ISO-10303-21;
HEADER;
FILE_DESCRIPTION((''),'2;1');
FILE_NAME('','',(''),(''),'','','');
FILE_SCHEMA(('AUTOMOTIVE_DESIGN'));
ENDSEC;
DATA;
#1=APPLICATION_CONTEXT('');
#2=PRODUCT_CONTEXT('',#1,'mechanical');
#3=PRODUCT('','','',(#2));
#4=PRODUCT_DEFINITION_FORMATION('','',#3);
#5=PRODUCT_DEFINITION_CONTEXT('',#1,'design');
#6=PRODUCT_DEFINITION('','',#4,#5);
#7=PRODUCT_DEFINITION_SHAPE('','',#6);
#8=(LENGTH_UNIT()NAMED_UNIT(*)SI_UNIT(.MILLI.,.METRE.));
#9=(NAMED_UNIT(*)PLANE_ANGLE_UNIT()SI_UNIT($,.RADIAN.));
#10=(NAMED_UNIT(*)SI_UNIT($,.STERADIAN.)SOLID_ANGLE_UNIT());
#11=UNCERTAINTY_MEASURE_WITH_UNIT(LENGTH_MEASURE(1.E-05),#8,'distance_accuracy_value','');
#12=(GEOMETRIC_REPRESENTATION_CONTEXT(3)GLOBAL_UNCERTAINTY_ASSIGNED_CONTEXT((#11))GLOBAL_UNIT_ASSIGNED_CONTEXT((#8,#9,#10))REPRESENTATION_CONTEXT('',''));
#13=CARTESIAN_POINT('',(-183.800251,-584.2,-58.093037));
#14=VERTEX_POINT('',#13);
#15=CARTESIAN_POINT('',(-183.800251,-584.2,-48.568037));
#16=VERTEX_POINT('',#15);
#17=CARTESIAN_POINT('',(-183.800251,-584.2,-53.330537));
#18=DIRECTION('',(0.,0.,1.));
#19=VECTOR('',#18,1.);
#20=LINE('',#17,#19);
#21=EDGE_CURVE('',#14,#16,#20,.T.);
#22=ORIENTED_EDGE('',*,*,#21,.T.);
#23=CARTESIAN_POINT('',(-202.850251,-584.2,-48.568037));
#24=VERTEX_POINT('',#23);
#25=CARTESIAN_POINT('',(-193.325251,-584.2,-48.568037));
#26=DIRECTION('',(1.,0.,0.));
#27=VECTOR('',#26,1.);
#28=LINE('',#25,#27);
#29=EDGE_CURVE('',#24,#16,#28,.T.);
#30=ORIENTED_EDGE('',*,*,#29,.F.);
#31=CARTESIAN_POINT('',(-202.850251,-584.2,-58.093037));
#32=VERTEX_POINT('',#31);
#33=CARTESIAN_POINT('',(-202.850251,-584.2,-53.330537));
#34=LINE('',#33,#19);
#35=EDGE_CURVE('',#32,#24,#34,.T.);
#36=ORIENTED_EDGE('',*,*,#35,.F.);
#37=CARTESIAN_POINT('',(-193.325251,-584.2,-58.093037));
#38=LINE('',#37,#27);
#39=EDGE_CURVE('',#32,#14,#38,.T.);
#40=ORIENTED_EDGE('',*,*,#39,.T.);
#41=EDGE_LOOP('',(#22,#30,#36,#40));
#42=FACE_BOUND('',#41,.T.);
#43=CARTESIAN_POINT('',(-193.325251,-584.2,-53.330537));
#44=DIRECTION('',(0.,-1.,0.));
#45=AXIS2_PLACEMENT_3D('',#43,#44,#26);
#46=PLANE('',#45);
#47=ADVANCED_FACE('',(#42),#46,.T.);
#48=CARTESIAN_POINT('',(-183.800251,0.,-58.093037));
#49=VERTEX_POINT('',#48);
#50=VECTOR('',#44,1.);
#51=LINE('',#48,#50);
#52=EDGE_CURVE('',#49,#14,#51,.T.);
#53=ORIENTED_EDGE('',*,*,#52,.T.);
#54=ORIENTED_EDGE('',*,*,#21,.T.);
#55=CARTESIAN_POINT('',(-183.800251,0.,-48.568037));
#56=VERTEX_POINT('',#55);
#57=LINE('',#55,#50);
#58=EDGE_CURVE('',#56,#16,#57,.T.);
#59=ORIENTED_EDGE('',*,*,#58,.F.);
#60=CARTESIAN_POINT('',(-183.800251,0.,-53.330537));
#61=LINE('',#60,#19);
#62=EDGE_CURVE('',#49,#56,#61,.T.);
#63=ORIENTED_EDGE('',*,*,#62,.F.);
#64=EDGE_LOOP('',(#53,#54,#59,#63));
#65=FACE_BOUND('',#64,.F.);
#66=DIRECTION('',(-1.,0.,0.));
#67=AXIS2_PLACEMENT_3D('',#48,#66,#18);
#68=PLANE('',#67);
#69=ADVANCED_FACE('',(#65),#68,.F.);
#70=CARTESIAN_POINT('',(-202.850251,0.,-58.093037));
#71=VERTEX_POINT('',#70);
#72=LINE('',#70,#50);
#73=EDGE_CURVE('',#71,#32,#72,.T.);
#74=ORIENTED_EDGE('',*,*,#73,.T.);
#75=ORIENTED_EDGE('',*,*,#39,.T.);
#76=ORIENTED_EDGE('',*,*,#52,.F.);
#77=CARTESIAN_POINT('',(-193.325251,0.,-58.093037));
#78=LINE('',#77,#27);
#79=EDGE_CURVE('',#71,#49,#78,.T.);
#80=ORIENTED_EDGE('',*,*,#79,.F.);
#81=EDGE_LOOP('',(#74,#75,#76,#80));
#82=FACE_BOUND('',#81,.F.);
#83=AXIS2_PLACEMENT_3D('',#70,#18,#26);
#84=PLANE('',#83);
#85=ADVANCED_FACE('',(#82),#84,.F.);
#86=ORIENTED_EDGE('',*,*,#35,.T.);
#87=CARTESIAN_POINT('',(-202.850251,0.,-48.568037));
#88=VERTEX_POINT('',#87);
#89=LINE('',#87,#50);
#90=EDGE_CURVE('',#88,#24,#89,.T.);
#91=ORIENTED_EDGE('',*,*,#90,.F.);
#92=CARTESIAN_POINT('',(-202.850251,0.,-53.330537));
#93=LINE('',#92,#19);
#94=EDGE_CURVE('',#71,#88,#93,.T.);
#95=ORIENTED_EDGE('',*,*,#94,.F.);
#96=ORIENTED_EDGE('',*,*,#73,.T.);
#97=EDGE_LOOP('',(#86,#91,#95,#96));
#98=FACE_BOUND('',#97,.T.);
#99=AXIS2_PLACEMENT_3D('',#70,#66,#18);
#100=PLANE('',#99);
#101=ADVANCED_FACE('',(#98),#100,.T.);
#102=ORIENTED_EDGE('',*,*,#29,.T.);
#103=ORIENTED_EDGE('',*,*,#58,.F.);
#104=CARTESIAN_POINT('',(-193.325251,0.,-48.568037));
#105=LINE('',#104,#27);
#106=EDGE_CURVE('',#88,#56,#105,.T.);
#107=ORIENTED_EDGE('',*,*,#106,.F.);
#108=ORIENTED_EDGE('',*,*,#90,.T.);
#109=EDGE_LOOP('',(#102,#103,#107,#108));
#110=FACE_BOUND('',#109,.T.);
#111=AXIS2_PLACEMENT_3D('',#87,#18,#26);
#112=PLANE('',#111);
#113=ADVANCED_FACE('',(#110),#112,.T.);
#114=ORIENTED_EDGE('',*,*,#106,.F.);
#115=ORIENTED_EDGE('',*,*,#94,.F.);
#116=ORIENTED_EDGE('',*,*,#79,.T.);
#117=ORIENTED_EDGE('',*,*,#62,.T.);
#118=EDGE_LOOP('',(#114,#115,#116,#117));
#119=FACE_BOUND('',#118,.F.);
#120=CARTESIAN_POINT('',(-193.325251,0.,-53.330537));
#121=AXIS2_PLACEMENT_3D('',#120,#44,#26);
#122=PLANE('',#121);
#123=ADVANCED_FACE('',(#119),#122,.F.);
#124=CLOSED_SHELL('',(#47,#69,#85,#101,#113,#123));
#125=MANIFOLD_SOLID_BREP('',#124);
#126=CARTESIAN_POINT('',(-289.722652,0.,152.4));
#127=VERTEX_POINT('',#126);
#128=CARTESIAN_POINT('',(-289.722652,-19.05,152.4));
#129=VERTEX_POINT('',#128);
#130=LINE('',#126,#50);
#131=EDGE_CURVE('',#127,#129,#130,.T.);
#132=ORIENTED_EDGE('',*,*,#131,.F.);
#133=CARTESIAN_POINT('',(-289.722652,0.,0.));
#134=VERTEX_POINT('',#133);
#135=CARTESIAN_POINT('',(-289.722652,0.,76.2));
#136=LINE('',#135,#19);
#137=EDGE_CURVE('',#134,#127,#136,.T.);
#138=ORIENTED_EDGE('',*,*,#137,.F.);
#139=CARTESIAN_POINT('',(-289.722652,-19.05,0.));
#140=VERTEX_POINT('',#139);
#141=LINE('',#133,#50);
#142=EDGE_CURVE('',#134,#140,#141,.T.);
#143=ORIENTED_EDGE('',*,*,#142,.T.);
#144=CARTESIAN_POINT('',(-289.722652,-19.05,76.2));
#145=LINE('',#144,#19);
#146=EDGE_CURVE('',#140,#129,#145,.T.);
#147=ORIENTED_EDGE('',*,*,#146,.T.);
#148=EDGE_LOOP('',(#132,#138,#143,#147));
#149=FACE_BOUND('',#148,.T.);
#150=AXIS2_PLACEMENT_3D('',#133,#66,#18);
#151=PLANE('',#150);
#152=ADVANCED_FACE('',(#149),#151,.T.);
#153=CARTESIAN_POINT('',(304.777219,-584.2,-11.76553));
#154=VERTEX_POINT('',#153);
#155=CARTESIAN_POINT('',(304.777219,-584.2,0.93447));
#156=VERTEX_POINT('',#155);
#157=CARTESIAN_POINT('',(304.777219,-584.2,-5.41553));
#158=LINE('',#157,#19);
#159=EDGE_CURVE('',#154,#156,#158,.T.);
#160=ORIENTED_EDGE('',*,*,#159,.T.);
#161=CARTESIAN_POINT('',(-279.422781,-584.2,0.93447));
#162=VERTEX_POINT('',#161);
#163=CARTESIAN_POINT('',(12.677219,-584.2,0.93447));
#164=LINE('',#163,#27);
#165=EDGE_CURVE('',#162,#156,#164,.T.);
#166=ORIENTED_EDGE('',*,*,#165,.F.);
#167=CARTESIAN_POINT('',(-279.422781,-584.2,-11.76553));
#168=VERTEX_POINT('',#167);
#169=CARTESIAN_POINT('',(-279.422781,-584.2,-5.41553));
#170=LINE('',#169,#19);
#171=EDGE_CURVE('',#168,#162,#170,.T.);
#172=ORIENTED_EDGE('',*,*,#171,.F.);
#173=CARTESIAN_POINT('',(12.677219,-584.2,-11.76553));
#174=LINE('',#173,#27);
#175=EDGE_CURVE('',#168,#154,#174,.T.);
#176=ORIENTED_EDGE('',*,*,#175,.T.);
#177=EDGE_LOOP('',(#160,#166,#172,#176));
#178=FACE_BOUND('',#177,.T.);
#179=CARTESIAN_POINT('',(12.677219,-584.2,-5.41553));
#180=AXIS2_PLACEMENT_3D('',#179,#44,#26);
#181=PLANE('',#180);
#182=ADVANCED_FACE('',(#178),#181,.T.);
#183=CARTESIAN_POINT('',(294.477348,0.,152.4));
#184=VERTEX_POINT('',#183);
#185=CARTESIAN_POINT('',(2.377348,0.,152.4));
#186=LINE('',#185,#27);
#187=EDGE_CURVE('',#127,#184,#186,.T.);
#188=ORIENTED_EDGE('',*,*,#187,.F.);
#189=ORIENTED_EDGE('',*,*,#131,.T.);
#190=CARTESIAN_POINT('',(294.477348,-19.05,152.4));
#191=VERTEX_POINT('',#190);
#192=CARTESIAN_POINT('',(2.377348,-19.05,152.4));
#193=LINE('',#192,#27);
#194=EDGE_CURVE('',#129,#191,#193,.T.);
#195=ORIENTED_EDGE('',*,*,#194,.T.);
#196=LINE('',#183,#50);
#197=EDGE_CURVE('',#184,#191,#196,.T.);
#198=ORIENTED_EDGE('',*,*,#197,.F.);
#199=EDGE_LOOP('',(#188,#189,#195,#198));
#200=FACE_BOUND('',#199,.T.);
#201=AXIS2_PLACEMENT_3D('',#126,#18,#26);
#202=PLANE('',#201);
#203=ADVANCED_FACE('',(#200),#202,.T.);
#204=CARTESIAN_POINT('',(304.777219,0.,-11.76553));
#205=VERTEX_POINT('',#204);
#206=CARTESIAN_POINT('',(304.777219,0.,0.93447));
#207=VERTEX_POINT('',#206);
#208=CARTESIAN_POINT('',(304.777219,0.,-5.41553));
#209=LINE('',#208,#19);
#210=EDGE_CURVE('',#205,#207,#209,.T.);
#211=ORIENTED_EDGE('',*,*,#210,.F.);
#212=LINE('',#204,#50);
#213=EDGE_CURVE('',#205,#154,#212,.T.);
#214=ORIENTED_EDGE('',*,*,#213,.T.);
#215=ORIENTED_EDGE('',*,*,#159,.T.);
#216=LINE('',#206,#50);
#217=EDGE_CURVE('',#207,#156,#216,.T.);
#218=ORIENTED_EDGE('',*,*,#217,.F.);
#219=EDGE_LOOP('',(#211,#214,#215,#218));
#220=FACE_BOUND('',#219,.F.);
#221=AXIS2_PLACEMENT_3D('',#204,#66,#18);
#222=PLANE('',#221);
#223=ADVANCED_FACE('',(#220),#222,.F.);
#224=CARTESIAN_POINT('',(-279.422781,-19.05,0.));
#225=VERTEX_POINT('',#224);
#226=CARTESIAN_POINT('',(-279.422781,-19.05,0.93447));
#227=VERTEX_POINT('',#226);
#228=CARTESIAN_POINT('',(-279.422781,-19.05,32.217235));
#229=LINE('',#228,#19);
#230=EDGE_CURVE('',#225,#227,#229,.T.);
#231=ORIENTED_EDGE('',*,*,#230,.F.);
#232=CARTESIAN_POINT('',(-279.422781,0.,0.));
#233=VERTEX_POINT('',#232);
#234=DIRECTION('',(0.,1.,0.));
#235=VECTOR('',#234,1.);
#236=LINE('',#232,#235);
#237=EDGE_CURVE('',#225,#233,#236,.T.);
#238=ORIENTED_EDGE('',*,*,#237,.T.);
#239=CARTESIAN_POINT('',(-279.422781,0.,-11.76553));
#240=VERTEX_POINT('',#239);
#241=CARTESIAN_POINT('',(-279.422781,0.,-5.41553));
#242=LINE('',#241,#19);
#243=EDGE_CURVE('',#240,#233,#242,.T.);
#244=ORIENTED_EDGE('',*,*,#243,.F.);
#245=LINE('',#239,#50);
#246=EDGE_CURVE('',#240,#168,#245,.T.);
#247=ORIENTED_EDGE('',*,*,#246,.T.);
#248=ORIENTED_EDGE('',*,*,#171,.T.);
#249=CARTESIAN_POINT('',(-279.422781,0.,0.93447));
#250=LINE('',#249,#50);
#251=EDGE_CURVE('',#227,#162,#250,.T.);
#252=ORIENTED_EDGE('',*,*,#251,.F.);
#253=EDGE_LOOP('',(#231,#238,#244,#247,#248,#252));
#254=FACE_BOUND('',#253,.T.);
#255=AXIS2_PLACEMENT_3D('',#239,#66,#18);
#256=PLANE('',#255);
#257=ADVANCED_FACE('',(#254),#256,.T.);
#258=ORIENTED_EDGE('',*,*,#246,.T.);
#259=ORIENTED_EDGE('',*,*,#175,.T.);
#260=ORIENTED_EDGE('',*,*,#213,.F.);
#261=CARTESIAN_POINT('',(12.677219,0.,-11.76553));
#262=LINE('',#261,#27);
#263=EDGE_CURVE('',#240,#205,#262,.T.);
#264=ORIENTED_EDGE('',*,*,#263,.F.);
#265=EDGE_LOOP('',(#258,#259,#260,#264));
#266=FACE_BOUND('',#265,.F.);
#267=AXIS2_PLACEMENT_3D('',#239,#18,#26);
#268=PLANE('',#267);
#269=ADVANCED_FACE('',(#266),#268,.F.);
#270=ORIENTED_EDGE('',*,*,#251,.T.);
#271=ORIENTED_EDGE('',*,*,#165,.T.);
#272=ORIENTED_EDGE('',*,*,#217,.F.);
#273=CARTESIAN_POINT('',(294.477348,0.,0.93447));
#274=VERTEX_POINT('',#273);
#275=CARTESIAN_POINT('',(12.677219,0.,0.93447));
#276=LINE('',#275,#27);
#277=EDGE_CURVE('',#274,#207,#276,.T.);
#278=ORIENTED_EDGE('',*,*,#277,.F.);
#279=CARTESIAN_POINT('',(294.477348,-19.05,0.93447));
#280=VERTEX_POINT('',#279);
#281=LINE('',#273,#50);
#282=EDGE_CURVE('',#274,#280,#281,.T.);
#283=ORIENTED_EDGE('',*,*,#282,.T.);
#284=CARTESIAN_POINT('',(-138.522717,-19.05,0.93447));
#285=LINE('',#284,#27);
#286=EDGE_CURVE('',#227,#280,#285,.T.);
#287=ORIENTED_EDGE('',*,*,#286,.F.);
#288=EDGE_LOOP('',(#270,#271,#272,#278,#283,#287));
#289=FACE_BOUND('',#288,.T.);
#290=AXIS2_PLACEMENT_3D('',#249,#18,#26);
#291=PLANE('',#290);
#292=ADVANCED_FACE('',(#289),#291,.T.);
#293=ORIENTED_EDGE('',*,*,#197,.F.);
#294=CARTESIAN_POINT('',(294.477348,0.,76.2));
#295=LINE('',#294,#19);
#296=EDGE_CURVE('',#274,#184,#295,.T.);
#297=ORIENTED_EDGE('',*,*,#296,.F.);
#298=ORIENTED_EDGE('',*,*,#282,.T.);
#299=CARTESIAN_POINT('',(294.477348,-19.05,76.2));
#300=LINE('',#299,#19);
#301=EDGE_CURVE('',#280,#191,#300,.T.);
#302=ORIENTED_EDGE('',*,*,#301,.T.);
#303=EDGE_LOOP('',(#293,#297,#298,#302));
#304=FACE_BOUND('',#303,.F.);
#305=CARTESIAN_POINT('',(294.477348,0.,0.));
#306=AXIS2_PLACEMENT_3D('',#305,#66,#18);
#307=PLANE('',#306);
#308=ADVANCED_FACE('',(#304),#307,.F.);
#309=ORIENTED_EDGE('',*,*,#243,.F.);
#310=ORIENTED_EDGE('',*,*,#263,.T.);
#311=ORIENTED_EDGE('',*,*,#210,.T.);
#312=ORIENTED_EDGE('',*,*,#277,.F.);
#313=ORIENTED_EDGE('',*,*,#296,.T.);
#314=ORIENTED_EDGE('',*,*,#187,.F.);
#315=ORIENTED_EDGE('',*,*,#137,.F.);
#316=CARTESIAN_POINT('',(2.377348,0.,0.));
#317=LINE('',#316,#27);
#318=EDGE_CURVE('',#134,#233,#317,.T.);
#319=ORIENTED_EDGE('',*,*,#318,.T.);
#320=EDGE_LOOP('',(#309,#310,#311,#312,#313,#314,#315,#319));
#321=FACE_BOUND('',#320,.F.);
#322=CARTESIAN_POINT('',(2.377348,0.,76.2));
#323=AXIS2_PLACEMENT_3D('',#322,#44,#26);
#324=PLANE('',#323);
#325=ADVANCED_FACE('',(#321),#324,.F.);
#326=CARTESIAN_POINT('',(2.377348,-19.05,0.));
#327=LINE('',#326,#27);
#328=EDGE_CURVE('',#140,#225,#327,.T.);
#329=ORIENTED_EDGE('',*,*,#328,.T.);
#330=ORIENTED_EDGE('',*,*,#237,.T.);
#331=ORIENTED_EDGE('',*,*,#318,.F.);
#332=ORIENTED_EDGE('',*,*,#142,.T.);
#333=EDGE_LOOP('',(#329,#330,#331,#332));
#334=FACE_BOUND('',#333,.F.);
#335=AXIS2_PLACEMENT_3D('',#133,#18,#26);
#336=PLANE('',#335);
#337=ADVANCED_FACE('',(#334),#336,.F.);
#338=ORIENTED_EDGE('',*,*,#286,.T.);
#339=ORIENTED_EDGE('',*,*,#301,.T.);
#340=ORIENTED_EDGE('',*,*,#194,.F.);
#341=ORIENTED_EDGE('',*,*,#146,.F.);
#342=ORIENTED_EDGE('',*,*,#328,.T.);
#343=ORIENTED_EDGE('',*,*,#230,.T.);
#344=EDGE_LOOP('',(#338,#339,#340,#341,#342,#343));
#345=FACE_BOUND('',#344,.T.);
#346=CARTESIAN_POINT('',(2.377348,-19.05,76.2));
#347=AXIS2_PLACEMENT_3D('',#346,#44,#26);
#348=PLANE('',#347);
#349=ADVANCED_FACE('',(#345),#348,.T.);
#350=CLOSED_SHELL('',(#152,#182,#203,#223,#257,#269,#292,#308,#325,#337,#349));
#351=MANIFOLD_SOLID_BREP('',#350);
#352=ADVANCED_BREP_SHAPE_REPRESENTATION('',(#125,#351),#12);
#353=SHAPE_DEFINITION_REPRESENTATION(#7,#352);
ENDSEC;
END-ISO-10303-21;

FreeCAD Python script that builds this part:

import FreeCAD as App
import Part
import Sketcher
Q = App.Units.Quantity

doc = App.newDocument("Part")
params = doc.addObject("Spreadsheet::Sheet", "Params")
for row, (alias, value) in enumerate([
    ("sketch1_width", "0.75 in"),
    ("sketch1_height", "0.375 in"),
    ("pad1_length", "23 in"),
    ("sketch2_width", "23 in"),
    ("sketch2_height", "0.5 in"),
    ("pad2_length", "23 in"),
    ("sketch3_width", "23 in"),
    ("sketch3_height", "6 in"),
    ("pad3_length", "0.75 in"),
], start=1):
    params.set(f"A{row}", alias)
    params.set(f"B{row}", "=" + value)
    params.setAlias(f"B{row}", alias)

body = doc.addObject("PartDesign::Body", "Body")

# Sketch on XZ plane
sketch1 = body.newObject("Sketcher::SketchObject", "Sketch")
sketch1.AttachmentSupport = (doc.getObject("XZ_Plane"), [""])
sketch1.MapMode = "FlatFace"
sketch1.addGeometry([
    Part.LineSegment(App.Vector(-203, -49, 0), App.Vector(-203, -58, 0)),
    Part.LineSegment(App.Vector(-203, -58, 0), App.Vector(-184, -58, 0)),
    Part.LineSegment(App.Vector(-184, -58, 0), App.Vector(-184, -49, 0)),
    Part.LineSegment(App.Vector(-184, -49, 0), App.Vector(-203, -49, 0)),
], False)
sketch1.addConstraint([
    Sketcher.Constraint("Coincident", 0, 2, 1, 1),
    Sketcher.Constraint("Coincident", 1, 2, 2, 1),
    Sketcher.Constraint("Coincident", 2, 2, 3, 1),
    Sketcher.Constraint("Coincident", 3, 2, 0, 1),
    Sketcher.Constraint("Vertical", 0),
    Sketcher.Constraint("Horizontal", 1),
    Sketcher.Constraint("Vertical", 2),
    Sketcher.Constraint("Horizontal", 3),
    Sketcher.Constraint("DistanceX", 1, 1, 1, 2, Q("0.75 in")),
    Sketcher.Constraint("DistanceY", 0, 2, 0, 1, Q("0.375 in")),
    Sketcher.Constraint("DistanceX", 0, 2, -1, 1, 202.850251),
    Sketcher.Constraint("DistanceY", 0, 2, -1, 1, 58.093037),
])
sketch1.setExpression("Constraints[8]", "Params.sketch1_width")
sketch1.setExpression("Constraints[9]", "Params.sketch1_height")
pad1 = body.newObject("PartDesign::Pad", "Pad")
pad1.Profile = sketch1
pad1.setExpression("Length", "Params.pad1_length")
body2 = doc.addObject("PartDesign::Body", "Body001")

# Sketch on XZ plane
sketch2 = body2.newObject("Sketcher::SketchObject", "Sketch001")
sketch2.AttachmentSupport = (doc.getObject("XZ_Plane001"), [""])
sketch2.MapMode = "FlatFace"
sketch2.addGeometry([
    Part.LineSegment(App.Vector(-279, 1, 0), App.Vector(-279, -12, 0)),
    Part.LineSegment(App.Vector(-279, -12, 0), App.Vector(305, -12, 0)),
    Part.LineSegment(App.Vector(305, -12, 0), App.Vector(305, 1, 0)),
    Part.LineSegment(App.Vector(305, 1, 0), App.Vector(-279, 1, 0)),
], False)
sketch2.addConstraint([
    Sketcher.Constraint("Coincident", 0, 2, 1, 1),
    Sketcher.Constraint("Coincident", 1, 2, 2, 1),
    Sketcher.Constraint("Coincident", 2, 2, 3, 1),
    Sketcher.Constraint("Coincident", 3, 2, 0, 1),
    Sketcher.Constraint("Vertical", 0),
    Sketcher.Constraint("Horizontal", 1),
    Sketcher.Constraint("Vertical", 2),
    Sketcher.Constraint("Horizontal", 3),
    Sketcher.Constraint("DistanceX", 1, 1, 1, 2, Q("23 in")),
    Sketcher.Constraint("DistanceY", 0, 2, 0, 1, Q("0.5 in")),
    Sketcher.Constraint("DistanceX", 0, 2, -1, 1, 279.422781),
    Sketcher.Constraint("DistanceY", 0, 2, -1, 1, 11.76553),
])
sketch2.setExpression("Constraints[8]", "Params.sketch2_width")
sketch2.setExpression("Constraints[9]", "Params.sketch2_height")
pad2 = body2.newObject("PartDesign::Pad", "Pad001")
pad2.Profile = sketch2
pad2.setExpression("Length", "Params.pad2_length")

# Sketch on XZ plane
sketch3 = body2.newObject("Sketcher::SketchObject", "Sketch002")
sketch3.AttachmentSupport = (doc.getObject("XZ_Plane001"), [""])
sketch3.MapMode = "FlatFace"
sketch3.addGeometry([
    Part.LineSegment(App.Vector(-290, 152, 0), App.Vector(-290, 0, 0)),
    Part.LineSegment(App.Vector(-290, 0, 0), App.Vector(294, 0, 0)),
    Part.LineSegment(App.Vector(294, 0, 0), App.Vector(294, 152, 0)),
    Part.LineSegment(App.Vector(294, 152, 0), App.Vector(-290, 152, 0)),
], False)
sketch3.addConstraint([
    Sketcher.Constraint("Coincident", 0, 2, 1, 1),
    Sketcher.Constraint("Coincident", 1, 2, 2, 1),
    Sketcher.Constraint("Coincident", 2, 2, 3, 1),
    Sketcher.Constraint("Coincident", 3, 2, 0, 1),
    Sketcher.Constraint("Vertical", 0),
    Sketcher.Constraint("Horizontal", 1),
    Sketcher.Constraint("Vertical", 2),
    Sketcher.Constraint("Horizontal", 3),
    Sketcher.Constraint("PointOnObject", 0, 2, -1),
    Sketcher.Constraint("DistanceX", 1, 1, 1, 2, Q("23 in")),
    Sketcher.Constraint("DistanceY", 0, 2, 0, 1, Q("6 in")),
    Sketcher.Constraint("DistanceX", 0, 2, -1, 1, 289.722652),
])
sketch3.setExpression("Constraints[9]", "Params.sketch3_width")
sketch3.setExpression("Constraints[10]", "Params.sketch3_height")
pad3 = body2.newObject("PartDesign::Pad", "Pad002")
pad3.Profile = sketch3
pad3.setExpression("Length", "Params.pad3_length")

doc.recompute()
